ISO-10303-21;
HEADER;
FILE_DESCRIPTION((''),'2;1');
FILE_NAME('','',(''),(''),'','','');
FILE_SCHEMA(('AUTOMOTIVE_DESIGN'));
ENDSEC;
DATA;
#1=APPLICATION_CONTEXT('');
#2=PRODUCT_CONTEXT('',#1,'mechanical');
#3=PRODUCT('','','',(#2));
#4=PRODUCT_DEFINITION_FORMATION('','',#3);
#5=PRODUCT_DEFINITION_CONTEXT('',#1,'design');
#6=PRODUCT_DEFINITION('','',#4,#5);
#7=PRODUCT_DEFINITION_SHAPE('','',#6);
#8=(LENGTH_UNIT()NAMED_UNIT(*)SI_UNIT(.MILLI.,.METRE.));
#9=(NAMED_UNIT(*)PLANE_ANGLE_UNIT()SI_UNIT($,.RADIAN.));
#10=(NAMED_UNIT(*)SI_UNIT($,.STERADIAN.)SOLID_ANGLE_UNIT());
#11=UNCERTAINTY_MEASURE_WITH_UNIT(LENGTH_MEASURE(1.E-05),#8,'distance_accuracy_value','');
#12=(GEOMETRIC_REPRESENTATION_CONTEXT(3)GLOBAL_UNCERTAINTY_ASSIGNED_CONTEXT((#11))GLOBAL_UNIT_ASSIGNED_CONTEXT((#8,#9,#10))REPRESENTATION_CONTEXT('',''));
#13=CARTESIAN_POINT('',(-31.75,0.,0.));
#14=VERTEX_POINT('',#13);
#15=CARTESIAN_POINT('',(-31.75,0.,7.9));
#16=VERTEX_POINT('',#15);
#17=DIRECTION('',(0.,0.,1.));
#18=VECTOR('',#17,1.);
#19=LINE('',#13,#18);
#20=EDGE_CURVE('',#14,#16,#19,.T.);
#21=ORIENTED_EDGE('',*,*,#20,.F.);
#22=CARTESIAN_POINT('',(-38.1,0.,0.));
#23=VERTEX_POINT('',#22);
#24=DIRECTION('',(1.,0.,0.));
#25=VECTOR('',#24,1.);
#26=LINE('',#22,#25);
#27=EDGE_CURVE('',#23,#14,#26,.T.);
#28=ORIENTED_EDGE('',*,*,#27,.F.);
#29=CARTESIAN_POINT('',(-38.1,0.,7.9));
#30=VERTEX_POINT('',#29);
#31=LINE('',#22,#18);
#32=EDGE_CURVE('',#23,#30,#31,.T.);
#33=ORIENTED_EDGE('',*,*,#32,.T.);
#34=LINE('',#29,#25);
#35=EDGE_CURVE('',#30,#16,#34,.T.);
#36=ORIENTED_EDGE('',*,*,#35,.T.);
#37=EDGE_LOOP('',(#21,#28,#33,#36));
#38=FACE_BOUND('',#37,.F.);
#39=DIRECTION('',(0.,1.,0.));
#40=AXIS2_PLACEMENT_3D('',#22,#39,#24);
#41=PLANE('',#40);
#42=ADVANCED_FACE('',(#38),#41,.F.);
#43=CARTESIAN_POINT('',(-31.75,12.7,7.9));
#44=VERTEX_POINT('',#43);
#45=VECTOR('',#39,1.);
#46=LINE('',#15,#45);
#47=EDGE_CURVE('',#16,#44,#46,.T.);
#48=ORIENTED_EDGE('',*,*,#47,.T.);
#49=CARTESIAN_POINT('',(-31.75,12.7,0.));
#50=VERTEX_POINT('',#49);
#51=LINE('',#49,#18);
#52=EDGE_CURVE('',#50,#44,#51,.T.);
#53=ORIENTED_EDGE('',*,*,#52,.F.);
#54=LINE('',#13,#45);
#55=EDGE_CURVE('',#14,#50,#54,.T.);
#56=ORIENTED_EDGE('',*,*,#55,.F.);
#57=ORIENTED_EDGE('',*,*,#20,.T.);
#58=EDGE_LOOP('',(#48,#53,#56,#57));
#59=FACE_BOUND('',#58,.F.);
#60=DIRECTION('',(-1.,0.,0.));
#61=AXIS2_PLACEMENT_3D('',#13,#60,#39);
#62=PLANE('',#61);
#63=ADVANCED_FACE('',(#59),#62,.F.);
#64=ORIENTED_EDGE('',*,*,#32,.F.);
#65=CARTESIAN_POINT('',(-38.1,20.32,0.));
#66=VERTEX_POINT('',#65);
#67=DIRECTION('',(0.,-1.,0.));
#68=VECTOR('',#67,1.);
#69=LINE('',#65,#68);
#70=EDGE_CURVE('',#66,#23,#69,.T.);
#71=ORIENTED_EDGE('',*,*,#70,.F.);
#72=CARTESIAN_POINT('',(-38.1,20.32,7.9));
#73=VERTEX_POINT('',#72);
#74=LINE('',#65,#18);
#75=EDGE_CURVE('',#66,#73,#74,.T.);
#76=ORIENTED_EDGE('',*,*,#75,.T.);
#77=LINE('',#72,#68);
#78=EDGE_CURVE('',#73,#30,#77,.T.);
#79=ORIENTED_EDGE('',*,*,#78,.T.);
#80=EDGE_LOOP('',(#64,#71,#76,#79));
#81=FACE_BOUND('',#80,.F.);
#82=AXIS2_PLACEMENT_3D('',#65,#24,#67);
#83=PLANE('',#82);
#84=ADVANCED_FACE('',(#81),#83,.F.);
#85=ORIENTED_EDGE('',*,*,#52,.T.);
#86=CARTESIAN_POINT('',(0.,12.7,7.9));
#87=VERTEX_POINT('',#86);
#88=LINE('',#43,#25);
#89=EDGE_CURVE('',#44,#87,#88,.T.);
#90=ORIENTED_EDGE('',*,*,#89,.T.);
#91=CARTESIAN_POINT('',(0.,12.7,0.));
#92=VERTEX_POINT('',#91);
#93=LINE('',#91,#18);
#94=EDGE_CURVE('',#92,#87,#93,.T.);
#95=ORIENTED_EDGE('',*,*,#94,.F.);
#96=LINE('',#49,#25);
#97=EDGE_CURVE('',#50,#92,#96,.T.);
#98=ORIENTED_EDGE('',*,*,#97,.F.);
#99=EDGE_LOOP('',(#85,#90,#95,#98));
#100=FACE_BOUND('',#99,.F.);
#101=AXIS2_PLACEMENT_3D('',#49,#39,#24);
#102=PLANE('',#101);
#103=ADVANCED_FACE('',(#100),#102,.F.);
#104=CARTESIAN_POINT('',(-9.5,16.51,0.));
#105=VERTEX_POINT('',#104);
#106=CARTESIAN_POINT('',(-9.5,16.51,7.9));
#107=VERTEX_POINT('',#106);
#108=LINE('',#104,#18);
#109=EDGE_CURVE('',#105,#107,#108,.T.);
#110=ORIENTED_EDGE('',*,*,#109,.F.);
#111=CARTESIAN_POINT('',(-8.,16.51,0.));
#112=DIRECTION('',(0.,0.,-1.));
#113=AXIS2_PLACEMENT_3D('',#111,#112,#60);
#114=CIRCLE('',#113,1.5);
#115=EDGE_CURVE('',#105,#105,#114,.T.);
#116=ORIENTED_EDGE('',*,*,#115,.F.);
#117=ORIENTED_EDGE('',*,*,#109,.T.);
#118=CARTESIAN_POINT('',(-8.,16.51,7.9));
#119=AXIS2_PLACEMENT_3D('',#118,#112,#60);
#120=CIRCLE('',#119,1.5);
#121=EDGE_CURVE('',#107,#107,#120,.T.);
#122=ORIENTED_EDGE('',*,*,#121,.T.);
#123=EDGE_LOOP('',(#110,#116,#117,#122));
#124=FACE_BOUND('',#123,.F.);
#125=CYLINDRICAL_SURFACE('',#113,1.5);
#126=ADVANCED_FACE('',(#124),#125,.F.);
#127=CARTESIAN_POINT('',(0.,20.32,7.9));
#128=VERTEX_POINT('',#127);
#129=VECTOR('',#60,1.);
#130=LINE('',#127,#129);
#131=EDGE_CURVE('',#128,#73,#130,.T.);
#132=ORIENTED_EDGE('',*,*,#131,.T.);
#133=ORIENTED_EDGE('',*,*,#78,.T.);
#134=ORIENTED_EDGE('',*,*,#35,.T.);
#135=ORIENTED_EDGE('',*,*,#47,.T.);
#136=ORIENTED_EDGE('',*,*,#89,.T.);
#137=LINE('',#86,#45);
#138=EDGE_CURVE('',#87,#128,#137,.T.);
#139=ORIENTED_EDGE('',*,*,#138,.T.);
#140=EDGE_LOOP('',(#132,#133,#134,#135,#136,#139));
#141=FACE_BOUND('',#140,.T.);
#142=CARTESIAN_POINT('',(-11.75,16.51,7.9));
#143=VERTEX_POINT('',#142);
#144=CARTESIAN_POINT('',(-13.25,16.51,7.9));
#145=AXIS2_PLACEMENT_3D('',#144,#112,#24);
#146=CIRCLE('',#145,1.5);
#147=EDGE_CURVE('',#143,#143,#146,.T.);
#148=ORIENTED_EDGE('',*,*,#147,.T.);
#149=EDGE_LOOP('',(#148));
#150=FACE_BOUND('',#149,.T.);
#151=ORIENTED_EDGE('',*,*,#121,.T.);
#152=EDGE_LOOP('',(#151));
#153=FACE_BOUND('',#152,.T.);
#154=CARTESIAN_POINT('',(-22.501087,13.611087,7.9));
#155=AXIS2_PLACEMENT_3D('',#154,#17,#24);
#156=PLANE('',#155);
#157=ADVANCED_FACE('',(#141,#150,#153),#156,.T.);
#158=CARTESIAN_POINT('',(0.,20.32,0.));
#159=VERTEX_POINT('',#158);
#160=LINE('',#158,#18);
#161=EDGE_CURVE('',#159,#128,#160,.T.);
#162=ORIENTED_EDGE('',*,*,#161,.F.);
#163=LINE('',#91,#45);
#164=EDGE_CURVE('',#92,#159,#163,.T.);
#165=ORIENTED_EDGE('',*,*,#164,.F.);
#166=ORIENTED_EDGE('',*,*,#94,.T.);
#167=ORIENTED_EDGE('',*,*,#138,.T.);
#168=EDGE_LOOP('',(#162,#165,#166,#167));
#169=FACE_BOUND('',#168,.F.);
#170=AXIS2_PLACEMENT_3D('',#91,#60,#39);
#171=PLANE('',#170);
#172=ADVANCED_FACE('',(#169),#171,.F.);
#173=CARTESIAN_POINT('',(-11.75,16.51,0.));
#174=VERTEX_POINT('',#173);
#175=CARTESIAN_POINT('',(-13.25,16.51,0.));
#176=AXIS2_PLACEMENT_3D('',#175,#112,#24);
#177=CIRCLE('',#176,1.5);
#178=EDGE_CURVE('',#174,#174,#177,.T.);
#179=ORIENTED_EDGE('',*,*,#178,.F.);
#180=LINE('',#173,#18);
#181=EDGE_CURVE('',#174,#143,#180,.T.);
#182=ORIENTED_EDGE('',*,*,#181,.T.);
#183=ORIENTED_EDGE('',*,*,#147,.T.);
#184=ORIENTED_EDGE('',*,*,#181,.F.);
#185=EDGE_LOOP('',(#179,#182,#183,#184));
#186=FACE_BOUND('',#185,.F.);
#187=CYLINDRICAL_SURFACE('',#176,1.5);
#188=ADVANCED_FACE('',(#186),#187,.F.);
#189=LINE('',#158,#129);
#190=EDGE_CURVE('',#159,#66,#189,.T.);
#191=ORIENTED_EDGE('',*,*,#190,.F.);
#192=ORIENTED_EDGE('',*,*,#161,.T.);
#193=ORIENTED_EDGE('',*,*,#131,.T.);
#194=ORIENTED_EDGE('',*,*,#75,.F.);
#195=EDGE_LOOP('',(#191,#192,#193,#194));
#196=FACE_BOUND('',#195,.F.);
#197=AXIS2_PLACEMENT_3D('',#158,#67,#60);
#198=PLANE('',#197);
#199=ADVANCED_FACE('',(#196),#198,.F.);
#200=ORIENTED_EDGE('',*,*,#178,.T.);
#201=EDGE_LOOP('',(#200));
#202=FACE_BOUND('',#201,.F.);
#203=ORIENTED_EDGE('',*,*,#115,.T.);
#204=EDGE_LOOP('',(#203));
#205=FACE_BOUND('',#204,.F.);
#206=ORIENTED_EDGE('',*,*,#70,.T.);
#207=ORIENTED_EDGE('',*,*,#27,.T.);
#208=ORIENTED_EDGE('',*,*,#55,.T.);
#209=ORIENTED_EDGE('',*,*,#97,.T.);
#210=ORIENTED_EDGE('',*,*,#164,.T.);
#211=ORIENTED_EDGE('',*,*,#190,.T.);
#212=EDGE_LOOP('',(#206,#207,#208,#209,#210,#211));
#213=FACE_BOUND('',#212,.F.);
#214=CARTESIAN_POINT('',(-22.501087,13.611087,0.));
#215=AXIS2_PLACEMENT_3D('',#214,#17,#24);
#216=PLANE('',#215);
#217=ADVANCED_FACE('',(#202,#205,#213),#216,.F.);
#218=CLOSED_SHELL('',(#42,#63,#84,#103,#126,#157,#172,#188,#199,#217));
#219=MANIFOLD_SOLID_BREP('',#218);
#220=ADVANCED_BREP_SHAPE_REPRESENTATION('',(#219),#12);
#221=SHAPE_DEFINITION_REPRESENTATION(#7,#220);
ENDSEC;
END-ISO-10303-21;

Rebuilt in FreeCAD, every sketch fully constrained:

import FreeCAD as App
import Part
import Sketcher
from FreeCAD import Vector
Q = App.Units.Quantity

doc = App.newDocument("Part")
body = doc.addObject("PartDesign::Body", "Body")

# Sketch on XY plane
sketch1 = doc.addObject("Sketcher::SketchObject", "Sketch")
body.addObject(sketch1)
sketch1.AttachmentSupport = (doc.XY_Plane, [""])
sketch1.MapMode = "FlatFace"
sketch1.addGeometry([
    Part.LineSegment(Vector(-38, 0, 0), Vector(-32, 0, 0)),  # 0
    Part.LineSegment(Vector(-32, 0, 0), Vector(-32, 13, 0)),  # 1
    Part.LineSegment(Vector(-32, 13, 0), Vector(0, 13, 0)),  # 2
    Part.LineSegment(Vector(0, 13, 0), Vector(0, 20, 0)),  # 3
    Part.LineSegment(Vector(0, 20, 0), Vector(-38, 20, 0)),  # 4
    Part.LineSegment(Vector(-38, 20, 0), Vector(-38, 0, 0)),  # 5
], False)
sketch1.addConstraint([
    Sketcher.Constraint("Coincident", 0, 2, 1, 1),
    Sketcher.Constraint("Coincident", 1, 2, 2, 1),
    Sketcher.Constraint("Coincident", 2, 2, 3, 1),
    Sketcher.Constraint("Coincident", 3, 2, 4, 1),
    Sketcher.Constraint("Coincident", 4, 2, 5, 1),
    Sketcher.Constraint("Coincident", 5, 2, 0, 1),
    Sketcher.Constraint("Horizontal", 0),
    Sketcher.Constraint("Vertical", 1),
    Sketcher.Constraint("Horizontal", 2),
    Sketcher.Constraint("Vertical", 3),
    Sketcher.Constraint("Horizontal", 4),
    Sketcher.Constraint("Vertical", 5),
    Sketcher.Constraint("PointOnObject", 0, 2, -1),
    Sketcher.Constraint("PointOnObject", 2, 2, -2),
    Sketcher.Constraint("DistanceX", 4, 2, 4, 1, Q("1.5 in")),
    Sketcher.Constraint("DistanceY", 1, 1, 1, 2, Q("0.5 in")),
    Sketcher.Constraint("DistanceY", 3, 1, 3, 2, Q("0.3 in")),
    Sketcher.Constraint("DistanceX", 0, 1, 0, 2, Q("0.25 in")),
])
pad1 = doc.addObject("PartDesign::Pad", "Pad")
body.addObject(pad1)
pad1.Profile = sketch1
pad1.Length = 7.9

# Sketch on XY plane
sketch2 = doc.addObject("Sketcher::SketchObject", "Sketch001")
body.addObject(sketch2)
sketch2.AttachmentSupport = (doc.XY_Plane, [""])
sketch2.MapMode = "FlatFace"
sketch2.addGeometry([
    Part.Circle(Vector(-8, 16.5, 0), Vector(0, 0, 1), 1.5),
    Part.Circle(Vector(-13.2, 16.5, 0), Vector(0, 0, 1), 1.5),
], False)
sketch2.addConstraint([
    Sketcher.Constraint("Equal", 0, 1),
    Sketcher.Constraint("Horizontal", 0, 3, 1, 3),
    Sketcher.Constraint("Diameter", 0, 3.0),
    Sketcher.Constraint("DistanceY", -1, 1, 0, 3, Q("0.65 in")),
    Sketcher.Constraint("DistanceX", 0, 3, -1, 1, 8.0),
    Sketcher.Constraint("DistanceX", 1, 3, -1, 1, 13.25),
])
pocket1 = doc.addObject("PartDesign::Pocket", "Pocket")
body.addObject(pocket1)
pocket1.Profile = sketch2
pocket1.Length = Q("1 in")
pocket1.Reversed = True

doc.recompute()
